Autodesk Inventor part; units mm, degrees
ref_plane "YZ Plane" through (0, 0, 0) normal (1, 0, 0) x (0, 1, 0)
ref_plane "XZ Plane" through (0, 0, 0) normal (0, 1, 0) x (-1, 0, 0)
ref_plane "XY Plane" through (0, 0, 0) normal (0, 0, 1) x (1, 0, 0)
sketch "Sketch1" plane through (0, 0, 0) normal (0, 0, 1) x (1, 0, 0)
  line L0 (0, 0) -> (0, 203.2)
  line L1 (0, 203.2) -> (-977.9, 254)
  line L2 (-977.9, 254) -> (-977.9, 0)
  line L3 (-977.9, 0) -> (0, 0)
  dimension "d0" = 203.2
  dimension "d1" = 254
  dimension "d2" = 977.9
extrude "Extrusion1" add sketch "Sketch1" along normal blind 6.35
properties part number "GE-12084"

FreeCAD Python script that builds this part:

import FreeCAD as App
import Part
import Sketcher
from FreeCAD import Vector
Q = App.Units.Quantity

doc = App.newDocument("Part")
body = doc.addObject("PartDesign::Body", "Body")

sketch1 = doc.addObject("Sketcher::SketchObject", "Sketch")
body.addObject(sketch1)
sketch1.AttachmentSupport = (doc.XY_Plane, [""])
sketch1.MapMode = "FlatFace"
sketch1.addGeometry(Part.LineSegment(Vector(-978, 0, 0), Vector(0, 0, 0)), False)
sketch1.addGeometry(Part.LineSegment(Vector(0, 0, 0), Vector(0, 203, 0)), False)
sketch1.addGeometry(Part.LineSegment(Vector(0, 203, 0), Vector(-978, 254, 0)), False)
sketch1.addGeometry(Part.LineSegment(Vector(-978, 254, 0), Vector(-978, 0, 0)), False)
sketch1.addConstraint(Sketcher.Constraint("Coincident", 0, 2, 1, 1))
sketch1.addConstraint(Sketcher.Constraint("Coincident", 1, 2, 2, 1))
sketch1.addConstraint(Sketcher.Constraint("Coincident", 2, 2, 3, 1))
sketch1.addConstraint(Sketcher.Constraint("Coincident", 3, 2, 0, 1))
sketch1.addConstraint(Sketcher.Constraint("Horizontal", 0))
sketch1.addConstraint(Sketcher.Constraint("Vertical", 1))
sketch1.addConstraint(Sketcher.Constraint("Vertical", 3))
sketch1.addConstraint(Sketcher.Constraint("Coincident", 0, 2, -1, 1))
sketch1.addConstraint(Sketcher.Constraint("DistanceY", 1, 1, 1, 2, Q("8 in")))
sketch1.addConstraint(Sketcher.Constraint("DistanceY", 3, 2, 3, 1, Q("10 in")))
sketch1.addConstraint(Sketcher.Constraint("DistanceX", 0, 1, 0, 2, Q("38.5 in")))
pad1 = doc.addObject("PartDesign::Pad", "Pad")
body.addObject(pad1)
pad1.Profile = sketch1
pad1.Length = Q("0.25 in")

doc.recompute()
